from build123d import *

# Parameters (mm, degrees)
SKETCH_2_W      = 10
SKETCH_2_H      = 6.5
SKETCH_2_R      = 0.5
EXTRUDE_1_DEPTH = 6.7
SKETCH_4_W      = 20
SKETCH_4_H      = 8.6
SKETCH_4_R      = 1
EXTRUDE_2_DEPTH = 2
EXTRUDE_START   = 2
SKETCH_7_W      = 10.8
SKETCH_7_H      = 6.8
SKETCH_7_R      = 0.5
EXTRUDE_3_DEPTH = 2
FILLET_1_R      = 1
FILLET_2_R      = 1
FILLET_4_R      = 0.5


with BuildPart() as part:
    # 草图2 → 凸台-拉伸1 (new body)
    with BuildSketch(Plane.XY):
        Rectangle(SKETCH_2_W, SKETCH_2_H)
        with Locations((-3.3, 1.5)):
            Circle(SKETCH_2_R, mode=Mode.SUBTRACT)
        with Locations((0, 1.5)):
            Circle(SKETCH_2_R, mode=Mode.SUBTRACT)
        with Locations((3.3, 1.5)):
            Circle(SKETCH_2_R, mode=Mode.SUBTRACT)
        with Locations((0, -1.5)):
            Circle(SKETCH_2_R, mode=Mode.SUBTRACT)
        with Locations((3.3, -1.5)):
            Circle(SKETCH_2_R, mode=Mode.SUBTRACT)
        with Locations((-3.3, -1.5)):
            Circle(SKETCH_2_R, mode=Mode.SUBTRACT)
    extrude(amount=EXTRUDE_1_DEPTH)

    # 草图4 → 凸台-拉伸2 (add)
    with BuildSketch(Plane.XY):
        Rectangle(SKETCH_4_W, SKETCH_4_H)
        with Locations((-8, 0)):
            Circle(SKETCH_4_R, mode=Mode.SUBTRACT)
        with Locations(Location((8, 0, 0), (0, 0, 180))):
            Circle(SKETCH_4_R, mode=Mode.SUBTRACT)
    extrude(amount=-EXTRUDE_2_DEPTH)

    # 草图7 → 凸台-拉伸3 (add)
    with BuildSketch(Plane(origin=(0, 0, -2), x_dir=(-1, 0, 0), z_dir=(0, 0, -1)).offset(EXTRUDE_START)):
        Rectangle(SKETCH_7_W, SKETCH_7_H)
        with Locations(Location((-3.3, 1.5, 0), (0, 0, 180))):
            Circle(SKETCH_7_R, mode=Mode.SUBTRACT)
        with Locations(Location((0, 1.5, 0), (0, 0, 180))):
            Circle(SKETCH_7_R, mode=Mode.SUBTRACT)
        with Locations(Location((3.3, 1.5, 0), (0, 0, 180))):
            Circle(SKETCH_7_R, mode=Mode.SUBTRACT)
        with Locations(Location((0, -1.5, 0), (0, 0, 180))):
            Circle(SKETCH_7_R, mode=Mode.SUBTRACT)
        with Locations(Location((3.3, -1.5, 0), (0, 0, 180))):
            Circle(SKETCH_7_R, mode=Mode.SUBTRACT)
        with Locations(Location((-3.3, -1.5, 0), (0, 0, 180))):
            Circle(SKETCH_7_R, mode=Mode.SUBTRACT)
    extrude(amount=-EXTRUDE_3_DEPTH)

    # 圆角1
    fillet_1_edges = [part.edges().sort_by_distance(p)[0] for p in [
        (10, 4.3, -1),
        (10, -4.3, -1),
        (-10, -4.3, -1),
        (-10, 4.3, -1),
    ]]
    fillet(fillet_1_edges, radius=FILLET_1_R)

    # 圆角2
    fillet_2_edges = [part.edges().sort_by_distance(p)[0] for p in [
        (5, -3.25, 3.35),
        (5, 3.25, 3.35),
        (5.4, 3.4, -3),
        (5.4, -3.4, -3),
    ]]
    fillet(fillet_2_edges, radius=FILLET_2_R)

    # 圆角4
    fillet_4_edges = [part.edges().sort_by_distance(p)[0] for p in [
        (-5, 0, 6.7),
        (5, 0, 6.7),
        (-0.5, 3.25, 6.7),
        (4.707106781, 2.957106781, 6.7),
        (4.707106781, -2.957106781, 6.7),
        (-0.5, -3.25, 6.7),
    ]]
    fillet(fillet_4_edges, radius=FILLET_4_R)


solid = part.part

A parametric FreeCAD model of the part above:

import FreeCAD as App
import Part
import Sketcher
from FreeCAD import Vector
Q = App.Units.Quantity


def edges_at(feature, points):
    """Names of the edges that pass closest to the given points."""
    edges = feature.Shape.Edges
    near = lambda p: min(range(len(edges)), key=lambda i: edges[i].distToShape(Part.Vertex(*p))[0])
    return sorted({f"Edge{near(p) + 1}" for p in points})

doc = App.newDocument("Part")
body = doc.addObject("PartDesign::Body", "Body")

# Sketch on XY plane
sketch1 = doc.addObject("Sketcher::SketchObject", "Sketch")
body.addObject(sketch1)
sketch1.AttachmentSupport = (doc.XY_Plane, [""])
sketch1.MapMode = "FlatFace"
sketch1.addGeometry([
    Part.LineSegment(Vector(-5, 3.25, 0), Vector(-5, -3.25, 0)),  # 0
    Part.LineSegment(Vector(-5, -3.25, 0), Vector(5, -3.25, 0)),  # 1
    Part.LineSegment(Vector(5, -3.25, 0), Vector(5, 3.25, 0)),  # 2
    Part.LineSegment(Vector(5, 3.25, 0), Vector(-5, 3.25, 0)),  # 3
    Part.Circle(Vector(-3.3, -1.5, 0), Vector(0, 0, 1), 0.5),  # 4
    Part.Circle(Vector(0, -1.5, 0), Vector(0, 0, 1), 0.5),  # 5
    Part.Circle(Vector(3.3, -1.5, 0), Vector(0, 0, 1), 0.5),  # 6
    Part.Circle(Vector(-3.3, 1.5, 0), Vector(0, 0, 1), 0.5),  # 7
    Part.Circle(Vector(0, 1.5, 0), Vector(0, 0, 1), 0.5),  # 8
    Part.Circle(Vector(3.3, 1.5, 0), Vector(0, 0, 1), 0.5),  # 9
], False)
sketch1.addConstraint([
    Sketcher.Constraint("Coincident", 0, 2, 1, 1),
    Sketcher.Constraint("Coincident", 1, 2, 2, 1),
    Sketcher.Constraint("Coincident", 2, 2, 3, 1),
    Sketcher.Constraint("Coincident", 3, 2, 0, 1),
    Sketcher.Constraint("Vertical", 0),
    Sketcher.Constraint("Horizontal", 1),
    Sketcher.Constraint("Vertical", 2),
    Sketcher.Constraint("Horizontal", 3),
    Sketcher.Constraint("Equal", 4, 5),
    Sketcher.Constraint("Equal", 5, 6),
    Sketcher.Constraint("Equal", 6, 7),
    Sketcher.Constraint("Equal", 7, 8),
    Sketcher.Constraint("Equal", 8, 9),
    Sketcher.Constraint("Symmetric", 6, 3, 7, 3, -1, 1),
    Sketcher.Constraint("Symmetric", 5, 3, 8, 3, -1, 1),
    Sketcher.Constraint("Symmetric", 4, 3, 9, 3, -1, 1),
    Sketcher.Constraint("Symmetric", 0, 2, 2, 2, -1, 1),
    Sketcher.Constraint("Symmetric", 4, 3, 6, 3, -2),
    Sketcher.Constraint("PointOnObject", 5, 3, -2),
    Sketcher.Constraint("Horizontal", 4, 3, 5, 3),
    Sketcher.Constraint("Diameter", 4, Q("1 mm")),
    Sketcher.Constraint("DistanceX", 1, 1, 1, 2, Q("10 mm")),
    Sketcher.Constraint("DistanceY", 0, 2, 0, 1, Q("6.5 mm")),
    Sketcher.Constraint("DistanceY", 4, 3, 7, 3, Q("3 mm")),
    Sketcher.Constraint("DistanceX", 4, 3, -1, 1, Q("3.3 mm")),
])
pad1 = doc.addObject("PartDesign::Pad", "Pad")
body.addObject(pad1)
pad1.Profile = sketch1
pad1.Length = 6.7

# Sketch on XY plane
sketch2 = doc.addObject("Sketcher::SketchObject", "Sketch001")
body.addObject(sketch2)
sketch2.AttachmentSupport = (doc.XY_Plane, [""])
sketch2.MapMode = "FlatFace"
sketch2.addGeometry([
    Part.LineSegment(Vector(-10, 4.3, 0), Vector(-10, -4.3, 0)),  # 0
    Part.LineSegment(Vector(-10, -4.3, 0), Vector(10, -4.3, 0)),  # 1
    Part.LineSegment(Vector(10, -4.3, 0), Vector(10, 4.3, 0)),  # 2
    Part.LineSegment(Vector(10, 4.3, 0), Vector(-10, 4.3, 0)),  # 3
    Part.Circle(Vector(-8, 0, 0), Vector(0, 0, 1), 1),  # 4
    Part.Circle(Vector(8, 0, 0), Vector(0, 0, 1), 1),  # 5
], False)
sketch2.addConstraint([
    Sketcher.Constraint("Coincident", 0, 2, 1, 1),
    Sketcher.Constraint("Coincident", 1, 2, 2, 1),
    Sketcher.Constraint("Coincident", 2, 2, 3, 1),
    Sketcher.Constraint("Coincident", 3, 2, 0, 1),
    Sketcher.Constraint("Vertical", 0),
    Sketcher.Constraint("Horizontal", 1),
    Sketcher.Constraint("Vertical", 2),
    Sketcher.Constraint("Horizontal", 3),
    Sketcher.Constraint("Equal", 4, 5),
    Sketcher.Constraint("Symmetric", 4, 3, 5, 3, -1, 1),
    Sketcher.Constraint("Symmetric", 0, 2, 2, 2, -1, 1),
    Sketcher.Constraint("PointOnObject", 4, 3, -1),
    Sketcher.Constraint("Diameter", 4, Q("2 mm")),
    Sketcher.Constraint("DistanceX", 1, 1, 1, 2, Q("20 mm")),
    Sketcher.Constraint("DistanceY", 0, 2, 0, 1, Q("8.6 mm")),
    Sketcher.Constraint("DistanceX", 4, 3, -1, 1, Q("8 mm")),
])
pad2 = doc.addObject("PartDesign::Pad", "Pad001")
body.addObject(pad2)
pad2.Profile = sketch2
pad2.Length = 2
pad2.Reversed = True

# Sketch on XY plane
sketch3 = doc.addObject("Sketcher::SketchObject", "Sketch002")
body.addObject(sketch3)
sketch3.AttachmentSupport = (doc.XY_Plane, [""])
sketch3.MapMode = "FlatFace"
sketch3.AttachmentOffset = App.Placement(Vector(0, 0, -4), App.Rotation())
sketch3.addGeometry([
    Part.LineSegment(Vector(5.4, 3.4, 0), Vector(5.4, -3.4, 0)),  # 0
    Part.LineSegment(Vector(5.4, -3.4, 0), Vector(-5.4, -3.4, 0)),  # 1
    Part.LineSegment(Vector(-5.4, -3.4, 0), Vector(-5.4, 3.4, 0)),  # 2
    Part.LineSegment(Vector(-5.4, 3.4, 0), Vector(5.4, 3.4, 0)),  # 3
    Part.Circle(Vector(3.3, -1.5, 0), Vector(0, 0, 1), 0.5),  # 4
    Part.Circle(Vector(0, -1.5, 0), Vector(0, 0, 1), 0.5),  # 5
    Part.Circle(Vector(-3.3, -1.5, 0), Vector(0, 0, 1), 0.5),  # 6
    Part.Circle(Vector(3.3, 1.5, 0), Vector(0, 0, 1), 0.5),  # 7
    Part.Circle(Vector(0, 1.5, 0), Vector(0, 0, 1), 0.5),  # 8
    Part.Circle(Vector(-3.3, 1.5, 0), Vector(0, 0, 1), 0.5),  # 9
], False)
sketch3.addConstraint([
    Sketcher.Constraint("Coincident", 0, 2, 1, 1),
    Sketcher.Constraint("Coincident", 1, 2, 2, 1),
    Sketcher.Constraint("Coincident", 2, 2, 3, 1),
    Sketcher.Constraint("Coincident", 3, 2, 0, 1),
    Sketcher.Constraint("Vertical", 0),
    Sketcher.Constraint("Horizontal", 1),
    Sketcher.Constraint("Vertical", 2),
    Sketcher.Constraint("Horizontal", 3),
    Sketcher.Constraint("Equal", 4, 5),
    Sketcher.Constraint("Equal", 5, 6),
    Sketcher.Constraint("Equal", 6, 7),
    Sketcher.Constraint("Equal", 7, 8),
    Sketcher.Constraint("Equal", 8, 9),
    Sketcher.Constraint("Symmetric", 6, 3, 7, 3, -1, 1),
    Sketcher.Constraint("Symmetric", 5, 3, 8, 3, -1, 1),
    Sketcher.Constraint("Symmetric", 4, 3, 9, 3, -1, 1),
    Sketcher.Constraint("Symmetric", 0, 2, 2, 2, -1, 1),
    Sketcher.Constraint("Symmetric", 4, 3, 6, 3, -2),
    Sketcher.Constraint("PointOnObject", 5, 3, -2),
    Sketcher.Constraint("Horizontal", 4, 3, 5, 3),
    Sketcher.Constraint("Diameter", 4, Q("1 mm")),
    Sketcher.Constraint("DistanceX", 1, 2, 1, 1, Q("10.8 mm")),
    Sketcher.Constraint("DistanceY", 0, 2, 0, 1, Q("6.8 mm")),
    Sketcher.Constraint("DistanceY", 4, 3, 7, 3, Q("3 mm")),
    Sketcher.Constraint("DistanceX", -1, 1, 4, 3, Q("3.3 mm")),
])
pad3 = doc.addObject("PartDesign::Pad", "Pad002")
body.addObject(pad3)
pad3.Profile = sketch3
pad3.Length = 2
doc.recompute()

fillet = doc.addObject("PartDesign::Fillet", "Fillet")
body.addObject(fillet)
fillet.Base = (pad3, edges_at(pad3, [
    (10, 4.3, -1),
    (10, -4.3, -1),
    (-10, -4.3, -1),
    (-10, 4.3, -1),
]))
fillet.Radius = 1
doc.recompute()

fillet2 = doc.addObject("PartDesign::Fillet", "Fillet001")
body.addObject(fillet2)
fillet2.Base = (fillet, edges_at(fillet, [
    (5, -3.25, 3.35),
    (5, 3.25, 3.35),
    (5.4, 3.4, -3),
    (5.4, -3.4, -3),
]))
fillet2.Radius = 1
doc.recompute()

fillet3 = doc.addObject("PartDesign::Fillet", "Fillet002")
body.addObject(fillet3)
fillet3.Base = (fillet2, edges_at(fillet2, [
    (-5, 0, 6.7),
    (5, 0, 6.7),
    (-0.5, 3.25, 6.7),
    (4.707, 2.957, 6.7),
    (4.707, -2.957, 6.7),
    (-0.5, -3.25, 6.7),
]))
fillet3.Radius = 0.5

doc.recompute()
